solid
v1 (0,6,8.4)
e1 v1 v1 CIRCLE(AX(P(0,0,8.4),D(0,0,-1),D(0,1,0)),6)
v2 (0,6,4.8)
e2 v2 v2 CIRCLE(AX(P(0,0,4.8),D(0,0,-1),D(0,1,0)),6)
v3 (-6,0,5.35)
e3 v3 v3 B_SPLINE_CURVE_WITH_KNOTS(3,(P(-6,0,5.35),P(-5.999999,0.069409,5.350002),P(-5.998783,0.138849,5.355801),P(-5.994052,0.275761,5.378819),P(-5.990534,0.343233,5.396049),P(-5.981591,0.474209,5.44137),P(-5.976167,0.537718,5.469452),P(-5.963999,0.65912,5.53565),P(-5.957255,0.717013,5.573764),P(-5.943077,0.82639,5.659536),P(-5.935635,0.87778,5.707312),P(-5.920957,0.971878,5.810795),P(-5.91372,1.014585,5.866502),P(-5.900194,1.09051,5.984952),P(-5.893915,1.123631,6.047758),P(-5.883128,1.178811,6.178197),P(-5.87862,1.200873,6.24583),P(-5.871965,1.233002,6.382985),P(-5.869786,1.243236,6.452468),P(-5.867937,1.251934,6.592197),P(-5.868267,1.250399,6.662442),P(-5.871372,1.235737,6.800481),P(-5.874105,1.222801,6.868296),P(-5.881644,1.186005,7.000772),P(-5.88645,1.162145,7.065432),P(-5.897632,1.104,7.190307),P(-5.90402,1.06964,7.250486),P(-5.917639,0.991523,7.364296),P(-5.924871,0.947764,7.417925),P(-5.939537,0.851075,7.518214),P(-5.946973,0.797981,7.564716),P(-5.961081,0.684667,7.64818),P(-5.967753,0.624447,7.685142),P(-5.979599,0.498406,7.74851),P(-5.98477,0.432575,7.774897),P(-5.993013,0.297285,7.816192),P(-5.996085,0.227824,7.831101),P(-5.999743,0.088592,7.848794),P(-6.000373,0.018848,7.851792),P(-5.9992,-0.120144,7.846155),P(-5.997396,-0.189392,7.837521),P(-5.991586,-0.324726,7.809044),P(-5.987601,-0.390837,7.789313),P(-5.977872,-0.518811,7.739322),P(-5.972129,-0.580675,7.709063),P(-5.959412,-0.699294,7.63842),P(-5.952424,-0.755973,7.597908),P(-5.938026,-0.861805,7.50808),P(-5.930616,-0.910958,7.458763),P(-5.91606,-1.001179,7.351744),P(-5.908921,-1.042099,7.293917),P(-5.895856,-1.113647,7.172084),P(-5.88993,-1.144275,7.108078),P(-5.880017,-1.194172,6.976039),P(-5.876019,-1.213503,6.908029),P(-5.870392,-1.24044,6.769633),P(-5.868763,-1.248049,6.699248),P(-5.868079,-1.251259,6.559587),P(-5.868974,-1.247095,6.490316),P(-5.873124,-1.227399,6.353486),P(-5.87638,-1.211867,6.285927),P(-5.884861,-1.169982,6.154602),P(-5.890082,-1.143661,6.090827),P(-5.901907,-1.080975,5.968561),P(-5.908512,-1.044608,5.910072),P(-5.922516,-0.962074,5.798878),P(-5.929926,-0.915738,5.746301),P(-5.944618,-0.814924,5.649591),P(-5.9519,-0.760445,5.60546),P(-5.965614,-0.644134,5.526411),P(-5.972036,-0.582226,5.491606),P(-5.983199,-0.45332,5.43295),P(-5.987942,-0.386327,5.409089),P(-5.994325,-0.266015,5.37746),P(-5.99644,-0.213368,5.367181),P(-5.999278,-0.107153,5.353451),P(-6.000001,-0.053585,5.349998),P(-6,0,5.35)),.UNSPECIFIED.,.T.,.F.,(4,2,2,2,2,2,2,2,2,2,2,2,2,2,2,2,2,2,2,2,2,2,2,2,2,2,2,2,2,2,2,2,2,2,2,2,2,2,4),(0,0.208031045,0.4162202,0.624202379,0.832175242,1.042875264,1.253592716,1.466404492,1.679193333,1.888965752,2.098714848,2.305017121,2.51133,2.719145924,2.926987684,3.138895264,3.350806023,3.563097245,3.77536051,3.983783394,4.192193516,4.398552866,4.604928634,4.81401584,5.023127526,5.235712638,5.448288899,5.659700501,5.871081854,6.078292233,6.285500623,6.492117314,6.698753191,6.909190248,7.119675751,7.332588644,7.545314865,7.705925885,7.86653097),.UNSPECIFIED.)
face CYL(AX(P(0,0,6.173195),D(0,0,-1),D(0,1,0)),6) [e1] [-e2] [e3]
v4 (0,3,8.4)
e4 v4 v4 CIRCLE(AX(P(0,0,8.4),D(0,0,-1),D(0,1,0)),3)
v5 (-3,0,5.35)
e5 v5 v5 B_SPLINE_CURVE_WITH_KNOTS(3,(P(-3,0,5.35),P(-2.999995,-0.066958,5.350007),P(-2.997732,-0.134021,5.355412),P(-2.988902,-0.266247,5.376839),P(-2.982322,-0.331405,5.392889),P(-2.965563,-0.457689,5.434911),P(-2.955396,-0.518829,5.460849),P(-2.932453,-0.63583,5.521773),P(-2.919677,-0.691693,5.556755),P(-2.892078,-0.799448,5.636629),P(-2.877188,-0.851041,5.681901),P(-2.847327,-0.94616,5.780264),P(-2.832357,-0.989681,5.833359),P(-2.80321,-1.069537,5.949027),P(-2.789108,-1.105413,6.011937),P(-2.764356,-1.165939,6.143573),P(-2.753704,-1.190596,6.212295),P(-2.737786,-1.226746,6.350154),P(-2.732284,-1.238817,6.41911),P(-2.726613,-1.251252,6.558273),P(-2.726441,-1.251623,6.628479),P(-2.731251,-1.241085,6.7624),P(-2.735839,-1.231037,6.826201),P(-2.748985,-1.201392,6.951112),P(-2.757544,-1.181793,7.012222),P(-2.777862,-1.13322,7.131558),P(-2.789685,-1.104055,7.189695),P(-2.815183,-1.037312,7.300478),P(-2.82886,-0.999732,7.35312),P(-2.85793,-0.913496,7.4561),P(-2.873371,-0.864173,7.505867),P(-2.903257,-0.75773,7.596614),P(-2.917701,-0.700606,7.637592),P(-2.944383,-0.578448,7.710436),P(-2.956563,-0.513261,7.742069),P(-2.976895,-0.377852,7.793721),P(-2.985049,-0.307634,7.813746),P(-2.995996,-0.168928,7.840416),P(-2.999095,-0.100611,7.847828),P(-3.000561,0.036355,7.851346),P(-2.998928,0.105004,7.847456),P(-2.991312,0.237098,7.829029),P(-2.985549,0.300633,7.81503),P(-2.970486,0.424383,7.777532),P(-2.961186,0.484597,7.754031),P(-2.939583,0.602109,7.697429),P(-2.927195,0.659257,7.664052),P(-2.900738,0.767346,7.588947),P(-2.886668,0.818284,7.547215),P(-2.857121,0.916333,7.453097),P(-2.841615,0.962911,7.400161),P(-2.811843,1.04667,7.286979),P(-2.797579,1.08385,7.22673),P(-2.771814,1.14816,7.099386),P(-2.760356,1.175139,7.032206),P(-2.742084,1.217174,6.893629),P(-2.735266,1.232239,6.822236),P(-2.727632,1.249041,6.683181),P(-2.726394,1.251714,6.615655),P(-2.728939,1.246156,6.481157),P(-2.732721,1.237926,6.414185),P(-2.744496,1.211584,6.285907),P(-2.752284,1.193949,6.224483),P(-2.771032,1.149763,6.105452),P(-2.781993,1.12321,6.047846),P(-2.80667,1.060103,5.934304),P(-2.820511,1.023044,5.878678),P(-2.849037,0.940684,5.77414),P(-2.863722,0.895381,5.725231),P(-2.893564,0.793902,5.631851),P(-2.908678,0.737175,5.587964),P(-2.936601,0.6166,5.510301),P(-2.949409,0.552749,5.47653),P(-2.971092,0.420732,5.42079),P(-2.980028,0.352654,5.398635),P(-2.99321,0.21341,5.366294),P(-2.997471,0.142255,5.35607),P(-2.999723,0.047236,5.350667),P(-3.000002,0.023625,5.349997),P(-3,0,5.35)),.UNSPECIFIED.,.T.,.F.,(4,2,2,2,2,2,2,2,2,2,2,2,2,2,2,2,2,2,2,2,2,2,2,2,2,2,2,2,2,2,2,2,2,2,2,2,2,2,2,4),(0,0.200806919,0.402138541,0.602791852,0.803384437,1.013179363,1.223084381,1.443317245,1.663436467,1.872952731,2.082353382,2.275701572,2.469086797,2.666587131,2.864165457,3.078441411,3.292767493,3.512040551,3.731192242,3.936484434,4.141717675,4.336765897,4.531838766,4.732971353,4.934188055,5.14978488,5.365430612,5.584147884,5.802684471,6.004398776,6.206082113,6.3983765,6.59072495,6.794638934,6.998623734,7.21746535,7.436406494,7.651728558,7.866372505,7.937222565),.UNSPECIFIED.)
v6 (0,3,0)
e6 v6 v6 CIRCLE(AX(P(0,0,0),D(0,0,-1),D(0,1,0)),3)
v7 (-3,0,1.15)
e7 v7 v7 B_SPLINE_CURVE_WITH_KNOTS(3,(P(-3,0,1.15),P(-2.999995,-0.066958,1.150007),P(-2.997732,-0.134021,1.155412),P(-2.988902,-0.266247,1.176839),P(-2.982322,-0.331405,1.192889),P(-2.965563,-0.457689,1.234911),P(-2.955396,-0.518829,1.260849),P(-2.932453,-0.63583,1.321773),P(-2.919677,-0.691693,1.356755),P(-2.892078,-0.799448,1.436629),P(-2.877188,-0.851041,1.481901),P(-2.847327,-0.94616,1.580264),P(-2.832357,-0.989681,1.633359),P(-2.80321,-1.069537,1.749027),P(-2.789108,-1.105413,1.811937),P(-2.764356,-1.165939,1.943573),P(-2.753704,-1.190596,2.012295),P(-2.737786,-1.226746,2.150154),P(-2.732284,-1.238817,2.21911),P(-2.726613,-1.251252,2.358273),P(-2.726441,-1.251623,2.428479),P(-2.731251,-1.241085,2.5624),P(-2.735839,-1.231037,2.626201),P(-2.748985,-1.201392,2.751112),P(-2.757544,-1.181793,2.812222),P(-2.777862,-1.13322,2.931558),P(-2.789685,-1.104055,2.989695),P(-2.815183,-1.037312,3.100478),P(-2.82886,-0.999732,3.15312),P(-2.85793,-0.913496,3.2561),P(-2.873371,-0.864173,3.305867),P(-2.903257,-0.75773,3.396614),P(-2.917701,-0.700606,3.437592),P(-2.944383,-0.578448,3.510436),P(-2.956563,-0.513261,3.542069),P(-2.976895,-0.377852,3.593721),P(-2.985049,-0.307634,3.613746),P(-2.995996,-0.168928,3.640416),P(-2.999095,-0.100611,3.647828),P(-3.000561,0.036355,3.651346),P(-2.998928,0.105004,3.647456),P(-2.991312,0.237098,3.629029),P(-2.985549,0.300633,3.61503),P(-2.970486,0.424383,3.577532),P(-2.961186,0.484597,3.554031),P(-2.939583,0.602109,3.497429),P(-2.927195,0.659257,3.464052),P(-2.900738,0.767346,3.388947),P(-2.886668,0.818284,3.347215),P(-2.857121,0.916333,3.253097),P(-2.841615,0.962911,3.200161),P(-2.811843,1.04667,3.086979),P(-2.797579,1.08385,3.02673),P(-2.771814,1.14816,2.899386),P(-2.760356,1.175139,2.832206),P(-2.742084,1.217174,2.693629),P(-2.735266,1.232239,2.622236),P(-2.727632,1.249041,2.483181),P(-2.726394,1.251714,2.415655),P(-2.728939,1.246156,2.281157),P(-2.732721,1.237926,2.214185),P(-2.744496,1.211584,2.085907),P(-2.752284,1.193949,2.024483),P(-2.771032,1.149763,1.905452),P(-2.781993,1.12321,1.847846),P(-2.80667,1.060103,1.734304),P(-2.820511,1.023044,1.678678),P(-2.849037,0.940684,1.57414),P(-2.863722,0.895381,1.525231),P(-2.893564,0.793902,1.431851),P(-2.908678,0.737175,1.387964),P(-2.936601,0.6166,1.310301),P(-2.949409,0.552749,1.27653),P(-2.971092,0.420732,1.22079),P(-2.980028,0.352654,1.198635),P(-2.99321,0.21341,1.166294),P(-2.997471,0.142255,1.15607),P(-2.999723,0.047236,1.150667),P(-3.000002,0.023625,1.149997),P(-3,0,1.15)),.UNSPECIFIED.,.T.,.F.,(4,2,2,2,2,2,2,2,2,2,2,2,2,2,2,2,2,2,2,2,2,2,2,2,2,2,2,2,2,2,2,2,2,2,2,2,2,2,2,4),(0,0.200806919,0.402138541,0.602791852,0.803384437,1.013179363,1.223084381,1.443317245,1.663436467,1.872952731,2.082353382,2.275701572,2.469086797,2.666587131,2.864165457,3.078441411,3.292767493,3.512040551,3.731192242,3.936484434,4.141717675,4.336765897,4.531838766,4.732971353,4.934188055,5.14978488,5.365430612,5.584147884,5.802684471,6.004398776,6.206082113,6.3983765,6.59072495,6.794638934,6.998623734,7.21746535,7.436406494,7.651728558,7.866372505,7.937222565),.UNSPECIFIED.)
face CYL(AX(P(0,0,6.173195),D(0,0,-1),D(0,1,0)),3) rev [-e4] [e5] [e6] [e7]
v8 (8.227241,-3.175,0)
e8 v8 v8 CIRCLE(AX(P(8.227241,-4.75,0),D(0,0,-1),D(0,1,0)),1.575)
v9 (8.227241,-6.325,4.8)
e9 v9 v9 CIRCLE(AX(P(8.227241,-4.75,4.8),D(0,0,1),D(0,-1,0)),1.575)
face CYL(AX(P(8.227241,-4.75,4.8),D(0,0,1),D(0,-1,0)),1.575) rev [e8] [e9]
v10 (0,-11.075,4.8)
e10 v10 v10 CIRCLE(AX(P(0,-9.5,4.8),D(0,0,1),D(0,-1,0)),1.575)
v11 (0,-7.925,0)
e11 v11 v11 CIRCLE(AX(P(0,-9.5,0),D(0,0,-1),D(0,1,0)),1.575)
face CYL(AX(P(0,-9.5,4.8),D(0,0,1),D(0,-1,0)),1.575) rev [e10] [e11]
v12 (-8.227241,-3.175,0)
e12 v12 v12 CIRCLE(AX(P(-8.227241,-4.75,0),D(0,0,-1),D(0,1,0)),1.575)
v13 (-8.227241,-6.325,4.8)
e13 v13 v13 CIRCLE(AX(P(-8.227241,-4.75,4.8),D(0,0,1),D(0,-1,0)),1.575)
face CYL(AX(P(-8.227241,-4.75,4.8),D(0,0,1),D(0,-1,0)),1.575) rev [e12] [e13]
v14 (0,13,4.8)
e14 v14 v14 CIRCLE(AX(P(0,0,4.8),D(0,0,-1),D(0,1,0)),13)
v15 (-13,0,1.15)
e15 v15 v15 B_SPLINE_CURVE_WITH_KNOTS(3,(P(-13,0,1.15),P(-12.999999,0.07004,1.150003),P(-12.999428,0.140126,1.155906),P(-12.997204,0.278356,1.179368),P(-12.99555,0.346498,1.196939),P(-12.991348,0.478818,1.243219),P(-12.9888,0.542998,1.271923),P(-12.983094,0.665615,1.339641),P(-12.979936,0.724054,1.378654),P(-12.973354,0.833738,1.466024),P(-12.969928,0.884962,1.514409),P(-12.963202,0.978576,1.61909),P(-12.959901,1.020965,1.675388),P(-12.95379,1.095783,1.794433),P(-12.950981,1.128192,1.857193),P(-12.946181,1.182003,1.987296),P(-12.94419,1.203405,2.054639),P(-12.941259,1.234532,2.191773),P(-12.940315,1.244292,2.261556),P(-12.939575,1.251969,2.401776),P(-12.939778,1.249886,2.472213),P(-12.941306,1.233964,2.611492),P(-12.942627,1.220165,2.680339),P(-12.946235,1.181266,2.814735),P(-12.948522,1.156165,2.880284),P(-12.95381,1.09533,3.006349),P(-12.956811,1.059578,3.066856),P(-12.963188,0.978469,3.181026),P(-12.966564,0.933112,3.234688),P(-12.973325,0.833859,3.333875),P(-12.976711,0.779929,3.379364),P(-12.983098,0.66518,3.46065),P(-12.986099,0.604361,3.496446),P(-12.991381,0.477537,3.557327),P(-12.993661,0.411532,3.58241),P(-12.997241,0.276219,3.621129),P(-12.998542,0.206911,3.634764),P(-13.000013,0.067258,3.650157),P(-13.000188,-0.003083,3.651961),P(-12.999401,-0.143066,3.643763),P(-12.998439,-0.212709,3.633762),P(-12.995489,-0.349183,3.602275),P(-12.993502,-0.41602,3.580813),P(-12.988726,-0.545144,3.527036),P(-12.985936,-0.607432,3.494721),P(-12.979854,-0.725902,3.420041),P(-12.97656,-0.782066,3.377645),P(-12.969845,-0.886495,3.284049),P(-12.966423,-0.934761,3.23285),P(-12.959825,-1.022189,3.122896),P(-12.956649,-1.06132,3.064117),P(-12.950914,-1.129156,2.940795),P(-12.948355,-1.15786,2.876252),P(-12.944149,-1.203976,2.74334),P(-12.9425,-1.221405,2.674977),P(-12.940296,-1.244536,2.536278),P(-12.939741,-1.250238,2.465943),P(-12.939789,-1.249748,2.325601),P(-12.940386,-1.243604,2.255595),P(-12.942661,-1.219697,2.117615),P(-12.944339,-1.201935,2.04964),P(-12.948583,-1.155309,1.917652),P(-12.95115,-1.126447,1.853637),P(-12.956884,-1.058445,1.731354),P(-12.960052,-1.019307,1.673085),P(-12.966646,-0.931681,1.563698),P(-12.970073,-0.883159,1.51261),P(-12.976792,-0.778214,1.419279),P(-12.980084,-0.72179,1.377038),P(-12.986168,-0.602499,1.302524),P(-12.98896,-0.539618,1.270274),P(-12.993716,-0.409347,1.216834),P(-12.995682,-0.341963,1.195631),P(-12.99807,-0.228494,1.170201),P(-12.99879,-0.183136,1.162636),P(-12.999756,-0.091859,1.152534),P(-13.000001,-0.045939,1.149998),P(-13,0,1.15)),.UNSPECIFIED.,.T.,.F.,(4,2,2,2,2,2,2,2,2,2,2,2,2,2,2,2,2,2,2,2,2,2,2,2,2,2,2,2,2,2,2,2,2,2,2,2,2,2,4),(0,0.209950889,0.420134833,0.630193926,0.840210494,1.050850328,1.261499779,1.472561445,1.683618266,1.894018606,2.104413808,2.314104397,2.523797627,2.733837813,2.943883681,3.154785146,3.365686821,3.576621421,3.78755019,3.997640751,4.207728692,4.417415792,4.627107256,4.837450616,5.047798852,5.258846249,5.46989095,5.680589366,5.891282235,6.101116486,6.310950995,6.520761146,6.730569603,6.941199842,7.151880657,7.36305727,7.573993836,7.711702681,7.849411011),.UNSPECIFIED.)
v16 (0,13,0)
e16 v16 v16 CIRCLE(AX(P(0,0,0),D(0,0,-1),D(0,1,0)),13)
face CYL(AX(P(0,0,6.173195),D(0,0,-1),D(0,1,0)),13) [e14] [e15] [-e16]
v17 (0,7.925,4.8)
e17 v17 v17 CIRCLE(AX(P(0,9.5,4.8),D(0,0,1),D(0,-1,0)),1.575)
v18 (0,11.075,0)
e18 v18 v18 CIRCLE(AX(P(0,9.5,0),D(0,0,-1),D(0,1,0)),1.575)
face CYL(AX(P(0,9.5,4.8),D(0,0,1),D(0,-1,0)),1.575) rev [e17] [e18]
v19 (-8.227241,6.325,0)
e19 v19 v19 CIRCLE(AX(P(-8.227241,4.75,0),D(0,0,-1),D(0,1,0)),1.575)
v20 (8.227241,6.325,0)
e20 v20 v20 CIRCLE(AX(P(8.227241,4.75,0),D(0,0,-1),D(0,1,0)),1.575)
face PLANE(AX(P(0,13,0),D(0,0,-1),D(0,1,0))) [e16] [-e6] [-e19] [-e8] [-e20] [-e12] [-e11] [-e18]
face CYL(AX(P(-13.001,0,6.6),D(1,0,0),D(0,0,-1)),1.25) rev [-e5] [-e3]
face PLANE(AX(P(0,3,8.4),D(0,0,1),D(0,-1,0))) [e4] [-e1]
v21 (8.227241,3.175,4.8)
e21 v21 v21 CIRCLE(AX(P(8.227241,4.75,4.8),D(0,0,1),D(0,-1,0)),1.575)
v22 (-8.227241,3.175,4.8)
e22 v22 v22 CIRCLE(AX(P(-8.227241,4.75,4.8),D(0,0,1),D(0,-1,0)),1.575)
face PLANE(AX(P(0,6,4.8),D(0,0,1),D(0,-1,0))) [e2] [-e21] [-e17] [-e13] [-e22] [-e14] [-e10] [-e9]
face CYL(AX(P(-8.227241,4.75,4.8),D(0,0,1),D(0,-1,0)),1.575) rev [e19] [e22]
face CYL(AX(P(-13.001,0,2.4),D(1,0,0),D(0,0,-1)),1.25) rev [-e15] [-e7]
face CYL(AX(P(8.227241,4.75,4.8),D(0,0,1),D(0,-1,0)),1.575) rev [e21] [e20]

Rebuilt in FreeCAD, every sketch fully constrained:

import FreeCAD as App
import Part
import Sketcher
from FreeCAD import Vector
Q = App.Units.Quantity


def add_polygon(sketch, points):
    """Adds a closed chain of lines whose ends are joined by coincident constraints."""
    first, n = sketch.GeometryCount, len(points)
    for a, b in zip(points, points[1:] + points[:1]):
        sketch.addGeometry(Part.LineSegment(App.Vector(*a, 0), App.Vector(*b, 0)), False)
    for i in range(n):
        sketch.addConstraint(Sketcher.Constraint("Coincident", first + i, 2, first + (i + 1) % n, 1))

doc = App.newDocument("Part")
body = doc.addObject("PartDesign::Body", "Body")

# Sketch on YZ plane
sketch1 = body.newObject("Sketcher::SketchObject", "Sketch")
sketch1.AttachmentSupport = (doc.getObject("YZ_Plane"), [""])
sketch1.MapMode = "FlatFace"
add_polygon(sketch1, [(3, 8.4), (3, 0), (13, 0), (13, 4.8), (6, 4.8), (6, 8.4)])  # lines 0-5
sketch1.addConstraint([
    Sketcher.Constraint("Vertical", 0),
    Sketcher.Constraint("Horizontal", 1),
    Sketcher.Constraint("Vertical", 2),
    Sketcher.Constraint("Horizontal", 3),
    Sketcher.Constraint("Vertical", 4),
    Sketcher.Constraint("Horizontal", 5),
    Sketcher.Constraint("PointOnObject", 0, 2, -1),
    Sketcher.Constraint("DistanceX", 1, 1, 1, 2, Q("10 mm")),
    Sketcher.Constraint("DistanceX", 3, 2, 3, 1, Q("7 mm")),
    Sketcher.Constraint("DistanceY", 0, 2, 0, 1, Q("8.4 mm")),
    Sketcher.Constraint("DistanceY", 2, 1, 2, 2, Q("4.8 mm")),
    Sketcher.Constraint("DistanceX", -1, 1, 0, 2, Q("3 mm")),
])
revolution = body.newObject("PartDesign::Revolution", "Revolution")
revolution.Profile = sketch1
revolution.ReferenceAxis = (sketch1, ["V_Axis"])
revolution.Angle = 360

# Sketch on XY plane
sketch2 = body.newObject("Sketcher::SketchObject", "Sketch001")
sketch2.AttachmentSupport = (doc.getObject("XY_Plane"), [""])
sketch2.MapMode = "FlatFace"
sketch2.AttachmentOffset = App.Placement(Vector(0, 0, 4.8), App.Rotation())
sketch2.addGeometry([
    Part.Circle(Vector(0, -9.5, 0), Vector(0, 0, 1), 1.6),  # 0
    Part.Circle(Vector(8.2, -4.8, 0), Vector(0, 0, 1), 1.6),  # 1
    Part.Circle(Vector(8.2, 4.8, 0), Vector(0, 0, 1), 1.6),  # 2
    Part.Circle(Vector(0, 9.5, 0), Vector(0, 0, 1), 1.6),  # 3
    Part.Circle(Vector(-8.2, 4.8, 0), Vector(0, 0, 1), 1.6),  # 4
    Part.Circle(Vector(-8.2, -4.8, 0), Vector(0, 0, 1), 1.6),  # 5
], False)
sketch2.addConstraint([
    Sketcher.Constraint("Equal", 0, 1),
    Sketcher.Constraint("Equal", 1, 2),
    Sketcher.Constraint("Equal", 2, 3),
    Sketcher.Constraint("Equal", 3, 4),
    Sketcher.Constraint("Equal", 4, 5),
    Sketcher.Constraint("Symmetric", 0, 3, 3, 3, -1, 1),
    Sketcher.Constraint("Symmetric", 1, 3, 4, 3, -1, 1),
    Sketcher.Constraint("Symmetric", 2, 3, 5, 3, -1, 1),
    Sketcher.Constraint("Symmetric", 2, 3, 4, 3, -2),
    Sketcher.Constraint("PointOnObject", 0, 3, -2),
    Sketcher.Constraint("Diameter", 0, Q("3.15 mm")),
    Sketcher.Constraint("DistanceY", 0, 3, 3, 3, Q("19 mm")),
    Sketcher.Constraint("DistanceY", 1, 3, 2, 3, Q("9.5 mm")),
    Sketcher.Constraint("DistanceX", -1, 1, 1, 3, Q("8.227241 mm")),
])
doc.recompute()
hole = body.newObject("PartDesign::Hole", "Hole")
hole.Profile = sketch2
hole.ThreadType = "None"
hole.Diameter = 3.15
hole.DepthType = "Dimension"
hole.Depth = 10
hole.DrillPoint = "Angled"
hole.DrillPointAngle = 118

# Sketch on YZ plane
sketch3 = body.newObject("Sketcher::SketchObject", "Sketch002")
sketch3.AttachmentSupport = (doc.getObject("YZ_Plane"), [""])
sketch3.MapMode = "FlatFace"
sketch3.addGeometry(Part.Circle(Vector(0, 2.4, 0), Vector(0, 0, 1), 1.2), False)
sketch3.addConstraint([
    Sketcher.Constraint("PointOnObject", 0, 3, -2),
    Sketcher.Constraint("Diameter", 0, Q("2.5 mm")),
    Sketcher.Constraint("DistanceY", -1, 1, 0, 3, Q("2.4 mm")),
])
pocket1 = body.newObject("PartDesign::Pocket", "Pocket")
pocket1.Profile = sketch3
pocket1.Length = 13

# Sketch on YZ plane
sketch4 = body.newObject("Sketcher::SketchObject", "Sketch003")
sketch4.AttachmentSupport = (doc.getObject("YZ_Plane"), [""])
sketch4.MapMode = "FlatFace"
sketch4.addGeometry(Part.Circle(Vector(0, 6.6, 0), Vector(0, 0, 1), 1.2), False)
sketch4.addConstraint([
    Sketcher.Constraint("PointOnObject", 0, 3, -2),
    Sketcher.Constraint("Diameter", 0, Q("2.5 mm")),
    Sketcher.Constraint("DistanceY", -1, 1, 0, 3, Q("6.6 mm")),
])
pocket2 = body.newObject("PartDesign::Pocket", "Pocket001")
pocket2.Profile = sketch4
pocket2.Length = 6

doc.recompute()
